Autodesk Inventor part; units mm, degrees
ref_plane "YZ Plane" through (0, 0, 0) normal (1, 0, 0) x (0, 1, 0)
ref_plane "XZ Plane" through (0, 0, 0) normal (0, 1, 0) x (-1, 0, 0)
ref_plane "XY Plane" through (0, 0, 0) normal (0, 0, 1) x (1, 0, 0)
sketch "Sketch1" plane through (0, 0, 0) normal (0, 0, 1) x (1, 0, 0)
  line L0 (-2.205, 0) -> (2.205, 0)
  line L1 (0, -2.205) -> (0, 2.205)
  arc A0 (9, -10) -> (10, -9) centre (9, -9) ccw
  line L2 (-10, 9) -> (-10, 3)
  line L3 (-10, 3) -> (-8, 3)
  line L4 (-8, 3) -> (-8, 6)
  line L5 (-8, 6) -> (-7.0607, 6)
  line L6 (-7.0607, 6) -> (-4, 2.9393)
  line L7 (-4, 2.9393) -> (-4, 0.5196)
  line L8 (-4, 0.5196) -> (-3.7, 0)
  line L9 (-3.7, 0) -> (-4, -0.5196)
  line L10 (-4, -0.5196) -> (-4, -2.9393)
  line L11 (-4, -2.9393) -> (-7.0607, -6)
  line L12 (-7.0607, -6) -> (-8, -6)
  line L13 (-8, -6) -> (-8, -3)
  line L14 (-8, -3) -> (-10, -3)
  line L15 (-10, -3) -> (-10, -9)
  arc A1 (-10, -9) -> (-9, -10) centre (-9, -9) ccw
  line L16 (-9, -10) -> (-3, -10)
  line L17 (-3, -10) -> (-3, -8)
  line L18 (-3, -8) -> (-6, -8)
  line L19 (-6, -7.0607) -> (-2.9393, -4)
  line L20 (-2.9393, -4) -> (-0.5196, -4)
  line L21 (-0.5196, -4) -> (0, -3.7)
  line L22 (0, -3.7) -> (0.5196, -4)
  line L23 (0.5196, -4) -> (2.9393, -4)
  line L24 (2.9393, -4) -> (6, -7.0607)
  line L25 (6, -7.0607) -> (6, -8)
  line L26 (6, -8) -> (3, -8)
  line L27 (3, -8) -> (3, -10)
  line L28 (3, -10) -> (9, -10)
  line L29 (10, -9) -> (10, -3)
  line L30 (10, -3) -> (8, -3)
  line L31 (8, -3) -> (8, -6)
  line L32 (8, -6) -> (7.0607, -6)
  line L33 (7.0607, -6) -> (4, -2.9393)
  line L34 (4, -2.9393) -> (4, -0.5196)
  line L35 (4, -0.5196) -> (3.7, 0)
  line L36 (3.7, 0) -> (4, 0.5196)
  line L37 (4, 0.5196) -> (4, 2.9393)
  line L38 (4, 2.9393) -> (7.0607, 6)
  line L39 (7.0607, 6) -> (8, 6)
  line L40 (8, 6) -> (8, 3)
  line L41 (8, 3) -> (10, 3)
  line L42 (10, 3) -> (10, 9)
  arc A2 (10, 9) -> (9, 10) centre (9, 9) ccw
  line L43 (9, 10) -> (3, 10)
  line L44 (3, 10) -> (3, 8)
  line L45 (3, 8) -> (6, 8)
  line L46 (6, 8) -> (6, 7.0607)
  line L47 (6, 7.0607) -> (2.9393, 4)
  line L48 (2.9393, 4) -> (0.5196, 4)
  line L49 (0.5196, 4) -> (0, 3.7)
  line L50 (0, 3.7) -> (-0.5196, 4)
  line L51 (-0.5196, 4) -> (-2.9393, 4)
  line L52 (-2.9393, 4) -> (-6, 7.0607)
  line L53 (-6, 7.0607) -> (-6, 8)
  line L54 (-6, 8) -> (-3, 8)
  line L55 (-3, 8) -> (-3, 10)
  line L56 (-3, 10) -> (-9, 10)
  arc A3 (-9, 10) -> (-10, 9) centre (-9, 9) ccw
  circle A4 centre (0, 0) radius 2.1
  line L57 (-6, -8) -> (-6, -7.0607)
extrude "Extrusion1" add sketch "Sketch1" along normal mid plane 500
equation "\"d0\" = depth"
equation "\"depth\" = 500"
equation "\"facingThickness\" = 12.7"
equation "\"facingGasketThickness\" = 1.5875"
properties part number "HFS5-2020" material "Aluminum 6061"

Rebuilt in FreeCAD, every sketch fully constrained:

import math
import FreeCAD as App
import Part
import Sketcher
Q = App.Units.Quantity

doc = App.newDocument("Part")
params = doc.addObject("Spreadsheet::Sheet", "Params")
for row, (alias, value) in enumerate([
    ("sketch1_radius", "1 mm"),
    ("sketch1_diameter", "4.2 mm"),
    ("sketch1_width", "6 mm"),
    ("sketch1_width2", "2 mm"),
    ("sketch1_width3", "3 mm"),
    ("pad1_length", "500 mm"),
], start=1):
    params.set(f"A{row}", alias)
    params.set(f"B{row}", "=" + value)
    params.setAlias(f"B{row}", alias)

body = doc.addObject("PartDesign::Body", "Body")

# Sketch on XY plane
sketch1 = body.newObject("Sketcher::SketchObject", "Sketch")
sketch1.AttachmentSupport = (doc.getObject("XY_Plane"), [""])
sketch1.MapMode = "FlatFace"
sketch1.addGeometry([
    Part.LineSegment(App.Vector(3, -10, 0), App.Vector(9, -10, 0)),  # 0
    Part.ArcOfCircle(Part.Circle(App.Vector(9, -9, 0), App.Vector(0, 0, 1), 1), math.radians(-90), math.radians(0)),  # 1
    Part.LineSegment(App.Vector(10, -9, 0), App.Vector(10, -3, 0)),  # 2
    Part.LineSegment(App.Vector(10, -3, 0), App.Vector(8, -3, 0)),  # 3
    Part.LineSegment(App.Vector(8, -3, 0), App.Vector(8, -6, 0)),  # 4
    Part.LineSegment(App.Vector(8, -6, 0), App.Vector(7.1, -6, 0)),  # 5
    Part.LineSegment(App.Vector(7.1, -6, 0), App.Vector(4, -2.9, 0)),  # 6
    Part.LineSegment(App.Vector(4, -2.9, 0), App.Vector(4, -0.5, 0)),  # 7
    Part.LineSegment(App.Vector(4, -0.5, 0), App.Vector(3.7, 0, 0)),  # 8
    Part.LineSegment(App.Vector(3.7, 0, 0), App.Vector(4, 0.5, 0)),  # 9
    Part.LineSegment(App.Vector(4, 0.5, 0), App.Vector(4, 2.9, 0)),  # 10
    Part.LineSegment(App.Vector(4, 2.9, 0), App.Vector(7.1, 6, 0)),  # 11
    Part.LineSegment(App.Vector(7.1, 6, 0), App.Vector(8, 6, 0)),  # 12
    Part.LineSegment(App.Vector(8, 6, 0), App.Vector(8, 3, 0)),  # 13
    Part.LineSegment(App.Vector(8, 3, 0), App.Vector(10, 3, 0)),  # 14
    Part.LineSegment(App.Vector(10, 3, 0), App.Vector(10, 9, 0)),  # 15
    Part.ArcOfCircle(Part.Circle(App.Vector(9, 9, 0), App.Vector(0, 0, 1), 1), math.radians(0), math.radians(90)),  # 16
    Part.LineSegment(App.Vector(9, 10, 0), App.Vector(3, 10, 0)),  # 17
    Part.LineSegment(App.Vector(3, 10, 0), App.Vector(3, 8, 0)),  # 18
    Part.LineSegment(App.Vector(3, 8, 0), App.Vector(6, 8, 0)),  # 19
    Part.LineSegment(App.Vector(6, 8, 0), App.Vector(6, 7.1, 0)),  # 20
    Part.LineSegment(App.Vector(6, 7.1, 0), App.Vector(2.9, 4, 0)),  # 21
    Part.LineSegment(App.Vector(2.9, 4, 0), App.Vector(0.5, 4, 0)),  # 22
    Part.LineSegment(App.Vector(0.5, 4, 0), App.Vector(0, 3.7, 0)),  # 23
    Part.LineSegment(App.Vector(0, 3.7, 0), App.Vector(-0.5, 4, 0)),  # 24
    Part.LineSegment(App.Vector(-0.5, 4, 0), App.Vector(-2.9, 4, 0)),  # 25
    Part.LineSegment(App.Vector(-2.9, 4, 0), App.Vector(-6, 7.1, 0)),  # 26
    Part.LineSegment(App.Vector(-6, 7.1, 0), App.Vector(-6, 8, 0)),  # 27
    Part.LineSegment(App.Vector(-6, 8, 0), App.Vector(-3, 8, 0)),  # 28
    Part.LineSegment(App.Vector(-3, 8, 0), App.Vector(-3, 10, 0)),  # 29
    Part.LineSegment(App.Vector(-3, 10, 0), App.Vector(-9, 10, 0)),  # 30
    Part.ArcOfCircle(Part.Circle(App.Vector(-9, 9, 0), App.Vector(0, 0, 1), 1), math.radians(90), math.radians(180)),  # 31
    Part.LineSegment(App.Vector(-10, 9, 0), App.Vector(-10, 3, 0)),  # 32
    Part.LineSegment(App.Vector(-10, 3, 0), App.Vector(-8, 3, 0)),  # 33
    Part.LineSegment(App.Vector(-8, 3, 0), App.Vector(-8, 6, 0)),  # 34
    Part.LineSegment(App.Vector(-8, 6, 0), App.Vector(-7.1, 6, 0)),  # 35
    Part.LineSegment(App.Vector(-7.1, 6, 0), App.Vector(-4, 2.9, 0)),  # 36
    Part.LineSegment(App.Vector(-4, 2.9, 0), App.Vector(-4, 0.5, 0)),  # 37
    Part.LineSegment(App.Vector(-4, 0.5, 0), App.Vector(-3.7, 0, 0)),  # 38
    Part.LineSegment(App.Vector(-3.7, 0, 0), App.Vector(-4, -0.5, 0)),  # 39
    Part.LineSegment(App.Vector(-4, -0.5, 0), App.Vector(-4, -2.9, 0)),  # 40
    Part.LineSegment(App.Vector(-4, -2.9, 0), App.Vector(-7.1, -6, 0)),  # 41
    Part.LineSegment(App.Vector(-7.1, -6, 0), App.Vector(-8, -6, 0)),  # 42
    Part.LineSegment(App.Vector(-8, -6, 0), App.Vector(-8, -3, 0)),  # 43
    Part.LineSegment(App.Vector(-8, -3, 0), App.Vector(-10, -3, 0)),  # 44
    Part.LineSegment(App.Vector(-10, -3, 0), App.Vector(-10, -9, 0)),  # 45
    Part.ArcOfCircle(Part.Circle(App.Vector(-9, -9, 0), App.Vector(0, 0, 1), 1), math.radians(180), math.radians(270)),  # 46
    Part.LineSegment(App.Vector(-9, -10, 0), App.Vector(-3, -10, 0)),  # 47
    Part.LineSegment(App.Vector(-3, -10, 0), App.Vector(-3, -8, 0)),  # 48
    Part.LineSegment(App.Vector(-3, -8, 0), App.Vector(-6, -8, 0)),  # 49
    Part.LineSegment(App.Vector(-6, -8, 0), App.Vector(-6, -7.1, 0)),  # 50
    Part.LineSegment(App.Vector(-6, -7.1, 0), App.Vector(-2.9, -4, 0)),  # 51
    Part.LineSegment(App.Vector(-2.9, -4, 0), App.Vector(-0.5, -4, 0)),  # 52
    Part.LineSegment(App.Vector(-0.5, -4, 0), App.Vector(0, -3.7, 0)),  # 53
    Part.LineSegment(App.Vector(0, -3.7, 0), App.Vector(0.5, -4, 0)),  # 54
    Part.LineSegment(App.Vector(0.5, -4, 0), App.Vector(2.9, -4, 0)),  # 55
    Part.LineSegment(App.Vector(2.9, -4, 0), App.Vector(6, -7.1, 0)),  # 56
    Part.LineSegment(App.Vector(6, -7.1, 0), App.Vector(6, -8, 0)),  # 57
    Part.LineSegment(App.Vector(6, -8, 0), App.Vector(3, -8, 0)),  # 58
    Part.LineSegment(App.Vector(3, -8, 0), App.Vector(3, -10, 0)),  # 59
    Part.Circle(App.Vector(0, 0, 0), App.Vector(0, 0, 1), 2.1),  # 60
], False)
sketch1.addConstraint([
    Sketcher.Constraint("Tangent", 0, 2, 1, 1),
    Sketcher.Constraint("Tangent", 1, 2, 2, 1),
    Sketcher.Constraint("Coincident", 2, 2, 3, 1),
    Sketcher.Constraint("Coincident", 3, 2, 4, 1),
    Sketcher.Constraint("Coincident", 4, 2, 5, 1),
    Sketcher.Constraint("Coincident", 5, 2, 6, 1),
    Sketcher.Constraint("Coincident", 6, 2, 7, 1),
    Sketcher.Constraint("Coincident", 7, 2, 8, 1),
    Sketcher.Constraint("Coincident", 8, 2, 9, 1),
    Sketcher.Constraint("Coincident", 9, 2, 10, 1),
    Sketcher.Constraint("Coincident", 10, 2, 11, 1),
    Sketcher.Constraint("Coincident", 11, 2, 12, 1),
    Sketcher.Constraint("Coincident", 12, 2, 13, 1),
    Sketcher.Constraint("Coincident", 13, 2, 14, 1),
    Sketcher.Constraint("Coincident", 14, 2, 15, 1),
    Sketcher.Constraint("Tangent", 15, 2, 16, 1),
    Sketcher.Constraint("Tangent", 16, 2, 17, 1),
    Sketcher.Constraint("Coincident", 17, 2, 18, 1),
    Sketcher.Constraint("Coincident", 18, 2, 19, 1),
    Sketcher.Constraint("Coincident", 19, 2, 20, 1),
    Sketcher.Constraint("Coincident", 20, 2, 21, 1),
    Sketcher.Constraint("Coincident", 21, 2, 22, 1),
    Sketcher.Constraint("Coincident", 22, 2, 23, 1),
    Sketcher.Constraint("Coincident", 23, 2, 24, 1),
    Sketcher.Constraint("Coincident", 24, 2, 25, 1),
    Sketcher.Constraint("Coincident", 25, 2, 26, 1),
    Sketcher.Constraint("Coincident", 26, 2, 27, 1),
    Sketcher.Constraint("Coincident", 27, 2, 28, 1),
    Sketcher.Constraint("Coincident", 28, 2, 29, 1),
    Sketcher.Constraint("Coincident", 29, 2, 30, 1),
    Sketcher.Constraint("Tangent", 30, 2, 31, 1),
    Sketcher.Constraint("Tangent", 31, 2, 32, 1),
    Sketcher.Constraint("Coincident", 32, 2, 33, 1),
    Sketcher.Constraint("Coincident", 33, 2, 34, 1),
    Sketcher.Constraint("Coincident", 34, 2, 35, 1),
    Sketcher.Constraint("Coincident", 35, 2, 36, 1),
    Sketcher.Constraint("Coincident", 36, 2, 37, 1),
    Sketcher.Constraint("Coincident", 37, 2, 38, 1),
    Sketcher.Constraint("Coincident", 38, 2, 39, 1),
    Sketcher.Constraint("Coincident", 39, 2, 40, 1),
    Sketcher.Constraint("Coincident", 40, 2, 41, 1),
    Sketcher.Constraint("Coincident", 41, 2, 42, 1),
    Sketcher.Constraint("Coincident", 42, 2, 43, 1),
    Sketcher.Constraint("Coincident", 43, 2, 44, 1),
    Sketcher.Constraint("Coincident", 44, 2, 45, 1),
    Sketcher.Constraint("Tangent", 45, 2, 46, 1),
    Sketcher.Constraint("Tangent", 46, 2, 47, 1),
    Sketcher.Constraint("Coincident", 47, 2, 48, 1),
    Sketcher.Constraint("Coincident", 48, 2, 49, 1),
    Sketcher.Constraint("Coincident", 49, 2, 50, 1),
    Sketcher.Constraint("Coincident", 50, 2, 51, 1),
    Sketcher.Constraint("Coincident", 51, 2, 52, 1),
    Sketcher.Constraint("Coincident", 52, 2, 53, 1),
    Sketcher.Constraint("Coincident", 53, 2, 54, 1),
    Sketcher.Constraint("Coincident", 54, 2, 55, 1),
    Sketcher.Constraint("Coincident", 55, 2, 56, 1),
    Sketcher.Constraint("Coincident", 56, 2, 57, 1),
    Sketcher.Constraint("Coincident", 57, 2, 58, 1),
    Sketcher.Constraint("Coincident", 58, 2, 59, 1),
    Sketcher.Constraint("Coincident", 59, 2, 0, 1),
    Sketcher.Constraint("Horizontal", 0),
    Sketcher.Constraint("Vertical", 2),
    Sketcher.Constraint("Horizontal", 3),
    Sketcher.Constraint("Vertical", 4),
    Sketcher.Constraint("Horizontal", 5),
    Sketcher.Constraint("Vertical", 7),
    Sketcher.Constraint("Vertical", 10),
    Sketcher.Constraint("Horizontal", 12),
    Sketcher.Constraint("Vertical", 13),
    Sketcher.Constraint("Horizontal", 14),
    Sketcher.Constraint("Vertical", 15),
    Sketcher.Constraint("Horizontal", 17),
    Sketcher.Constraint("Vertical", 18),
    Sketcher.Constraint("Horizontal", 19),
    Sketcher.Constraint("Vertical", 20),
    Sketcher.Constraint("Horizontal", 22),
    Sketcher.Constraint("Horizontal", 25),
    Sketcher.Constraint("Vertical", 27),
    Sketcher.Constraint("Horizontal", 28),
    Sketcher.Constraint("Vertical", 29),
    Sketcher.Constraint("Horizontal", 30),
    Sketcher.Constraint("Vertical", 32),
    Sketcher.Constraint("Horizontal", 33),
    Sketcher.Constraint("Vertical", 34),
    Sketcher.Constraint("Horizontal", 35),
    Sketcher.Constraint("Vertical", 37),
    Sketcher.Constraint("Vertical", 40),
    Sketcher.Constraint("Horizontal", 42),
    Sketcher.Constraint("Vertical", 43),
    Sketcher.Constraint("Horizontal", 44),
    Sketcher.Constraint("Vertical", 45),
    Sketcher.Constraint("Horizontal", 47),
    Sketcher.Constraint("Vertical", 48),
    Sketcher.Constraint("Horizontal", 49),
    Sketcher.Constraint("Vertical", 50),
    Sketcher.Constraint("Horizontal", 52),
    Sketcher.Constraint("Horizontal", 55),
    Sketcher.Constraint("Vertical", 57),
    Sketcher.Constraint("Horizontal", 58),
    Sketcher.Constraint("Vertical", 59),
    Sketcher.Constraint("Coincident", 60, 3, -1, 1),
    Sketcher.Constraint("Equal", 1, 16),
    Sketcher.Constraint("Equal", 16, 31),
    Sketcher.Constraint("Equal", 31, 46),
    Sketcher.Constraint("Symmetric", 1, 3, 31, 3, -1, 1),
    Sketcher.Constraint("Symmetric", 16, 3, 46, 3, -1, 1),
    Sketcher.Constraint("Symmetric", 3, 2, 33, 2, -1, 1),
    Sketcher.Constraint("Symmetric", 5, 2, 35, 2, -1, 1),
    Sketcher.Constraint("Symmetric", 6, 2, 36, 2, -1, 1),
    Sketcher.Constraint("Symmetric", 8, 2, 38, 2, -1, 1),
    Sketcher.Constraint("Symmetric", 9, 2, 39, 2, -1, 1),
    Sketcher.Constraint("Symmetric", 11, 2, 41, 2, -1, 1),
    Sketcher.Constraint("Symmetric", 13, 2, 43, 2, -1, 1),
    Sketcher.Constraint("Symmetric", 18, 2, 48, 2, -1, 1),
    Sketcher.Constraint("Symmetric", 20, 2, 50, 2, -1, 1),
    Sketcher.Constraint("Symmetric", 21, 2, 51, 2, -1, 1),
    Sketcher.Constraint("Symmetric", 23, 2, 53, 2, -1, 1),
    Sketcher.Constraint("Symmetric", 24, 2, 54, 2, -1, 1),
    Sketcher.Constraint("Symmetric", 26, 2, 56, 2, -1, 1),
    Sketcher.Constraint("Symmetric", 28, 2, 58, 2, -1, 1),
    Sketcher.Constraint("Symmetric", 16, 3, 31, 3, -2),
    Sketcher.Constraint("Symmetric", 22, 2, 24, 2, -2),
    Sketcher.Constraint("Symmetric", 20, 2, 26, 2, -2),
    Sketcher.Constraint("Symmetric", 18, 2, 28, 2, -2),
    Sketcher.Constraint("Symmetric", 13, 2, 33, 2, -2),
    Sketcher.Constraint("Symmetric", 11, 2, 35, 2, -2),
    Sketcher.Constraint("Symmetric", 10, 2, 36, 2, -2),
    Sketcher.Constraint("PointOnObject", 8, 2, -1),
    Sketcher.Constraint("PointOnObject", 23, 2, -2),
    Sketcher.Constraint("Perpendicular", 6, 11),
    Sketcher.Constraint("Parallel", 11, 21),
    Sketcher.Constraint("Perpendicular", 8, 23),
    Sketcher.Constraint("Perpendicular", 9, 24),
    Sketcher.Constraint("Perpendicular", 21, 26),
    Sketcher.Constraint("Perpendicular", 23, 38),
    Sketcher.Constraint("Perpendicular", 36, 41),
    Sketcher.Constraint("Perpendicular", 38, 53),
    Sketcher.Constraint("Perpendicular", 51, 56),
    Sketcher.Constraint("Equal", 47, 2),
    Sketcher.Constraint("Equal", 58, 4),
    Sketcher.Constraint("Equal", 55, 7),
    Sketcher.Constraint("Equal", 44, 18),
    Sketcher.Constraint("Equal", 42, 20),
    Sketcher.Constraint("Equal", 11, 21),
    Sketcher.Constraint("Equal", 9, 23),
    Sketcher.Constraint("Radius", 1, Q("1 mm")),
    Sketcher.Constraint("Diameter", 60, Q("4.2 mm")),
    Sketcher.Constraint("DistanceX", 0, 1, 0, 2, Q("6 mm")),
    Sketcher.Constraint("DistanceX", 3, 2, 3, 1, Q("2 mm")),
    Sketcher.Constraint("DistanceX", 19, 1, 19, 2, Q("3 mm")),
    Sketcher.Constraint("Angle", 8, Q("120.0007 deg")),
    Sketcher.Constraint("DistanceX", -1, 1, 1, 3, Q("9 mm")),
    Sketcher.Constraint("DistanceX", -1, 1, 6, 2, Q("4 mm")),
    Sketcher.Constraint("Distance", 8, Q("0.6 mm")),
    Sketcher.Constraint("DistanceX", 5, 2, 5, 1, Q("0.9393 mm")),
])
sketch1.setExpression("Constraints[145]", "Params.sketch1_radius")
sketch1.setExpression("Constraints[146]", "Params.sketch1_diameter")
sketch1.setExpression("Constraints[147]", "Params.sketch1_width")
sketch1.setExpression("Constraints[148]", "Params.sketch1_width2")
sketch1.setExpression("Constraints[149]", "Params.sketch1_width3")
pad1 = body.newObject("PartDesign::Pad", "Pad")
pad1.Profile = sketch1
pad1.setExpression("Length", "Params.pad1_length")
pad1.Midplane = True

doc.recompute()
